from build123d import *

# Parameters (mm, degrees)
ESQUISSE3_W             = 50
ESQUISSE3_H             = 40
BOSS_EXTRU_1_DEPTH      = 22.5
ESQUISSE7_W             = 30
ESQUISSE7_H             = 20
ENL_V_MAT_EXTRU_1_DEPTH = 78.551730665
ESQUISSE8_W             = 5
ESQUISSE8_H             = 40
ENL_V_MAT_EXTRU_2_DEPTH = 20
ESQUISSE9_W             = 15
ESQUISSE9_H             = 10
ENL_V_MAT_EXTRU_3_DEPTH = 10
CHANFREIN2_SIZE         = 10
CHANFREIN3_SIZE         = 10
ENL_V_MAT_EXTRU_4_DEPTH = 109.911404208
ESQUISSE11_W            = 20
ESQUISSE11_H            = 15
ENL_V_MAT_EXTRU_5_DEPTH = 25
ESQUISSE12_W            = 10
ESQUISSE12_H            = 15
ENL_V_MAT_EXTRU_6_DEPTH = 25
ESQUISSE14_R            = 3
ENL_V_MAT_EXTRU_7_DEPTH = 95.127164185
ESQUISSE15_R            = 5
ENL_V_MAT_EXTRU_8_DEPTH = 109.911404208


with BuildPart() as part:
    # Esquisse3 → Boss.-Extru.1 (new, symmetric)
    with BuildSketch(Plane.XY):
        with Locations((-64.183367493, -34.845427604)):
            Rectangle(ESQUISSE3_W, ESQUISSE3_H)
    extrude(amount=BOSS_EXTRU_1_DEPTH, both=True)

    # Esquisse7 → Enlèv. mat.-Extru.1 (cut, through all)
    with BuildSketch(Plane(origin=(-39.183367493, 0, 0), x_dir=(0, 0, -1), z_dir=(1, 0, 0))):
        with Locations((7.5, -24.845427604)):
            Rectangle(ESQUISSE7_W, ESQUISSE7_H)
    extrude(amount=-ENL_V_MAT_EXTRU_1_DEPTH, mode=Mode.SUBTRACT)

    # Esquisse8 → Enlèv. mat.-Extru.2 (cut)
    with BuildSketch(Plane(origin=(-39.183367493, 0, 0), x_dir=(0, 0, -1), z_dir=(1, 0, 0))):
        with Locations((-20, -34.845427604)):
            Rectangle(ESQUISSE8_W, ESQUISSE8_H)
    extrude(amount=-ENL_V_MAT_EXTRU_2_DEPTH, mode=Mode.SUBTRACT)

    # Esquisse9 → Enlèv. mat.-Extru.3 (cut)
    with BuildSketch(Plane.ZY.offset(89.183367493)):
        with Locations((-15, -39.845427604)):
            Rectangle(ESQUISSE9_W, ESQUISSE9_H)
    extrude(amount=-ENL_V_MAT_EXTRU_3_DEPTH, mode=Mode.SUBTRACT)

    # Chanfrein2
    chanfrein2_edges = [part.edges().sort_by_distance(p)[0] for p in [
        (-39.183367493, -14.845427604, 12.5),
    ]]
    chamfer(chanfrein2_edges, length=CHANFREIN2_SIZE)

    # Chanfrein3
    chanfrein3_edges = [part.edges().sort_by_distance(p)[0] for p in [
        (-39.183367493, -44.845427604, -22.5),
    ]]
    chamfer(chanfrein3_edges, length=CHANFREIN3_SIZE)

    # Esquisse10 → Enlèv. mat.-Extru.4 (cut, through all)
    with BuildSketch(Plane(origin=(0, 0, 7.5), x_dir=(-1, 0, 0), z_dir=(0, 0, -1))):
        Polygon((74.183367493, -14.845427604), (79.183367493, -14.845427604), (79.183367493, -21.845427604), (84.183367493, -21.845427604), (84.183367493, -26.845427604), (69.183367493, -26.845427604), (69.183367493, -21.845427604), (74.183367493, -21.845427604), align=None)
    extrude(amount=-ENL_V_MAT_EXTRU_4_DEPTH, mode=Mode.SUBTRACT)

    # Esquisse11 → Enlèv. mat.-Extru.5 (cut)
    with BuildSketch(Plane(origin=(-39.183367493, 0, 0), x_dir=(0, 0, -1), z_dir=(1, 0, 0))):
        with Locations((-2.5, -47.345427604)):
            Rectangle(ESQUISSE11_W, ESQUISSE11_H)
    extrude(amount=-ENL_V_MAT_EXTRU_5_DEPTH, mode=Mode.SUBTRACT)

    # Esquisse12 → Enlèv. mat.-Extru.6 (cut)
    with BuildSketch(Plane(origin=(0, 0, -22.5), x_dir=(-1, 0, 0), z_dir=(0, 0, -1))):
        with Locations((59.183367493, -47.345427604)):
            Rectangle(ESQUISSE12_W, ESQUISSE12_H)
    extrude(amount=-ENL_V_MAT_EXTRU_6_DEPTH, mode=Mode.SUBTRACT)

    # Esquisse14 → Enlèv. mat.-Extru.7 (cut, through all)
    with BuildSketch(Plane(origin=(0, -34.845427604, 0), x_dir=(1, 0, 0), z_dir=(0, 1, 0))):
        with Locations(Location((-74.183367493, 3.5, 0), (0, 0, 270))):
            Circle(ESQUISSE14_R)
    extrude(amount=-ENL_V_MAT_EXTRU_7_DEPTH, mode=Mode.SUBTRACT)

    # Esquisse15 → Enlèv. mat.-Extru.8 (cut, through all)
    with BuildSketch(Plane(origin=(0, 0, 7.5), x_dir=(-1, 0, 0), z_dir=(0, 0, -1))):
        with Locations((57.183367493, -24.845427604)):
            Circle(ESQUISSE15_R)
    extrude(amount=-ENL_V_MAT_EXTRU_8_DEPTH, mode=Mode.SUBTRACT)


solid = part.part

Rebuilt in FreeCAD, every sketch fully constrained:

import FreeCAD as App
import Part
import Sketcher

V = App.Vector
Q = App.Units.Quantity


def edges_at(feature, points):
    """Names of the edges that pass closest to the given points."""
    edges = feature.Shape.Edges
    near = lambda p: min(range(len(edges)), key=lambda i: edges[i].distToShape(Part.Vertex(*p))[0])
    return sorted({f"Edge{near(p) + 1}" for p in points})

doc = App.newDocument("Part")
body = doc.addObject("PartDesign::Body", "Body")

# Sketch on XY plane
sketch1 = body.newObject("Sketcher::SketchObject", "Sketch")
sketch1.AttachmentSupport = (doc.getObject("XY_Plane"), [""])
sketch1.MapMode = "FlatFace"
sketch1.addGeometry(Part.LineSegment(V(-89.183367, -14.845428, 0), V(-89.183367, -54.845428, 0)), False)
sketch1.addGeometry(Part.LineSegment(V(-89.183367, -54.845428, 0), V(-39.183367, -54.845428, 0)), False)
sketch1.addGeometry(Part.LineSegment(V(-39.183367, -54.845428, 0), V(-39.183367, -14.845428, 0)), False)
sketch1.addGeometry(Part.LineSegment(V(-39.183367, -14.845428, 0), V(-89.183367, -14.845428, 0)), False)
sketch1.addConstraint(Sketcher.Constraint("Coincident", 0, 2, 1, 1))
sketch1.addConstraint(Sketcher.Constraint("Coincident", 1, 2, 2, 1))
sketch1.addConstraint(Sketcher.Constraint("Coincident", 2, 2, 3, 1))
sketch1.addConstraint(Sketcher.Constraint("Coincident", 3, 2, 0, 1))
sketch1.addConstraint(Sketcher.Constraint("Vertical", 0))
sketch1.addConstraint(Sketcher.Constraint("Horizontal", 1))
sketch1.addConstraint(Sketcher.Constraint("Vertical", 2))
sketch1.addConstraint(Sketcher.Constraint("Horizontal", 3))
sketch1.addConstraint(Sketcher.Constraint("DistanceX", 1, 1, 1, 2, Q("50 mm")))
sketch1.addConstraint(Sketcher.Constraint("DistanceY", 0, 2, 0, 1, Q("40 mm")))
sketch1.addConstraint(Sketcher.Constraint("DistanceX", 0, 2, -1, 1, Q("89.183367 mm")))
sketch1.addConstraint(Sketcher.Constraint("DistanceY", 0, 2, -1, 1, Q("54.845428 mm")))
pad1 = body.newObject("PartDesign::Pad", "Pad")
pad1.Profile = sketch1
pad1.Length = 45
pad1.Midplane = True

# Sketch on YZ plane
sketch2 = body.newObject("Sketcher::SketchObject", "Sketch001")
sketch2.AttachmentSupport = (doc.getObject("YZ_Plane"), [""])
sketch2.MapMode = "FlatFace"
sketch2.AttachmentOffset = App.Placement(V(0, 0, -39.183367), App.Rotation())
sketch2.addGeometry(Part.LineSegment(V(-14.845428, 7.5, 0), V(-34.845428, 7.5, 0)), False)
sketch2.addGeometry(Part.LineSegment(V(-34.845428, 7.5, 0), V(-34.845428, -22.5, 0)), False)
sketch2.addGeometry(Part.LineSegment(V(-34.845428, -22.5, 0), V(-14.845428, -22.5, 0)), False)
sketch2.addGeometry(Part.LineSegment(V(-14.845428, -22.5, 0), V(-14.845428, 7.5, 0)), False)
sketch2.addConstraint(Sketcher.Constraint("Coincident", 0, 2, 1, 1))
sketch2.addConstraint(Sketcher.Constraint("Coincident", 1, 2, 2, 1))
sketch2.addConstraint(Sketcher.Constraint("Coincident", 2, 2, 3, 1))
sketch2.addConstraint(Sketcher.Constraint("Coincident", 3, 2, 0, 1))
sketch2.addConstraint(Sketcher.Constraint("Horizontal", 0))
sketch2.addConstraint(Sketcher.Constraint("Vertical", 1))
sketch2.addConstraint(Sketcher.Constraint("Horizontal", 2))
sketch2.addConstraint(Sketcher.Constraint("Vertical", 3))
sketch2.addConstraint(Sketcher.Constraint("DistanceX", 0, 2, 0, 1, Q("20 mm")))
sketch2.addConstraint(Sketcher.Constraint("DistanceY", 1, 2, 1, 1, Q("30 mm")))
sketch2.addConstraint(Sketcher.Constraint("DistanceY", -1, 1, 0, 2, Q("7.5 mm")))
sketch2.addConstraint(Sketcher.Constraint("DistanceX", 0, 2, -1, 1, Q("34.845428 mm")))
pocket1 = body.newObject("PartDesign::Pocket", "Pocket")
pocket1.Profile = sketch2
pocket1.Type = "ThroughAll"

# Sketch on YZ plane
sketch3 = body.newObject("Sketcher::SketchObject", "Sketch002")
sketch3.AttachmentSupport = (doc.getObject("YZ_Plane"), [""])
sketch3.MapMode = "FlatFace"
sketch3.AttachmentOffset = App.Placement(V(0, 0, -39.183367), App.Rotation())
sketch3.addGeometry(Part.LineSegment(V(-14.845428, 22.5, 0), V(-54.845428, 22.5, 0)), False)
sketch3.addGeometry(Part.LineSegment(V(-54.845428, 22.5, 0), V(-54.845428, 17.5, 0)), False)
sketch3.addGeometry(Part.LineSegment(V(-54.845428, 17.5, 0), V(-14.845428, 17.5, 0)), False)
sketch3.addGeometry(Part.LineSegment(V(-14.845428, 17.5, 0), V(-14.845428, 22.5, 0)), False)
sketch3.addConstraint(Sketcher.Constraint("Coincident", 0, 2, 1, 1))
sketch3.addConstraint(Sketcher.Constraint("Coincident", 1, 2, 2, 1))
sketch3.addConstraint(Sketcher.Constraint("Coincident", 2, 2, 3, 1))
sketch3.addConstraint(Sketcher.Constraint("Coincident", 3, 2, 0, 1))
sketch3.addConstraint(Sketcher.Constraint("Horizontal", 0))
sketch3.addConstraint(Sketcher.Constraint("Vertical", 1))
sketch3.addConstraint(Sketcher.Constraint("Horizontal", 2))
sketch3.addConstraint(Sketcher.Constraint("Vertical", 3))
sketch3.addConstraint(Sketcher.Constraint("DistanceX", 0, 2, 0, 1, Q("40 mm")))
sketch3.addConstraint(Sketcher.Constraint("DistanceY", 1, 2, 1, 1, Q("5 mm")))
sketch3.addConstraint(Sketcher.Constraint("DistanceY", -1, 1, 0, 2, Q("22.5 mm")))
sketch3.addConstraint(Sketcher.Constraint("DistanceX", 0, 2, -1, 1, Q("54.845428 mm")))
pocket2 = body.newObject("PartDesign::Pocket", "Pocket001")
pocket2.Profile = sketch3
pocket2.Length = 20

# Sketch on YZ plane
sketch4 = body.newObject("Sketcher::SketchObject", "Sketch003")
sketch4.AttachmentSupport = (doc.getObject("YZ_Plane"), [""])
sketch4.MapMode = "FlatFace"
sketch4.AttachmentOffset = App.Placement(V(0, 0, -89.183367), App.Rotation())
sketch4.addGeometry(Part.LineSegment(V(-34.845428, -22.5, 0), V(-44.845428, -22.5, 0)), False)
sketch4.addGeometry(Part.LineSegment(V(-44.845428, -22.5, 0), V(-44.845428, -7.5, 0)), False)
sketch4.addGeometry(Part.LineSegment(V(-44.845428, -7.5, 0), V(-34.845428, -7.5, 0)), False)
sketch4.addGeometry(Part.LineSegment(V(-34.845428, -7.5, 0), V(-34.845428, -22.5, 0)), False)
sketch4.addConstraint(Sketcher.Constraint("Coincident", 0, 2, 1, 1))
sketch4.addConstraint(Sketcher.Constraint("Coincident", 1, 2, 2, 1))
sketch4.addConstraint(Sketcher.Constraint("Coincident", 2, 2, 3, 1))
sketch4.addConstraint(Sketcher.Constraint("Coincident", 3, 2, 0, 1))
sketch4.addConstraint(Sketcher.Constraint("Horizontal", 0))
sketch4.addConstraint(Sketcher.Constraint("Vertical", 1))
sketch4.addConstraint(Sketcher.Constraint("Horizontal", 2))
sketch4.addConstraint(Sketcher.Constraint("Vertical", 3))
sketch4.addConstraint(Sketcher.Constraint("DistanceX", 0, 2, 0, 1, Q("10 mm")))
sketch4.addConstraint(Sketcher.Constraint("DistanceY", 1, 1, 1, 2, Q("15 mm")))
sketch4.addConstraint(Sketcher.Constraint("DistanceY", 0, 2, -1, 1, Q("22.5 mm")))
sketch4.addConstraint(Sketcher.Constraint("DistanceX", 0, 2, -1, 1, Q("44.845428 mm")))
pocket3 = body.newObject("PartDesign::Pocket", "Pocket002")
pocket3.Profile = sketch4
pocket3.Length = 10
pocket3.Reversed = True
doc.recompute()

chamfer = body.newObject("PartDesign::Chamfer", "Chamfer")
chamfer.Base = (pocket3, edges_at(pocket3, [(-39.183, -14.845, 12.5)]))
chamfer.Size = 10
doc.recompute()

chamfer2 = body.newObject("PartDesign::Chamfer", "Chamfer001")
chamfer2.Base = (chamfer, edges_at(chamfer, [(-39.183, -44.845, -22.5)]))
chamfer2.Size = 10

# Sketch on XY plane
sketch5 = body.newObject("Sketcher::SketchObject", "Sketch004")
sketch5.AttachmentSupport = (doc.getObject("XY_Plane"), [""])
sketch5.MapMode = "FlatFace"
sketch5.AttachmentOffset = App.Placement(V(0, 0, 7.5), App.Rotation())
sketch5.addGeometry(Part.LineSegment(V(-79.183367, -14.845428, 0), V(-74.183367, -14.845428, 0)), False)
sketch5.addGeometry(Part.LineSegment(V(-74.183367, -14.845428, 0), V(-74.183367, -21.845428, 0)), False)
sketch5.addGeometry(Part.LineSegment(V(-74.183367, -21.845428, 0), V(-69.183367, -21.845428, 0)), False)
sketch5.addGeometry(Part.LineSegment(V(-69.183367, -21.845428, 0), V(-69.183367, -26.845428, 0)), False)
sketch5.addGeometry(Part.LineSegment(V(-69.183367, -26.845428, 0), V(-84.183367, -26.845428, 0)), False)
sketch5.addGeometry(Part.LineSegment(V(-84.183367, -26.845428, 0), V(-84.183367, -21.845428, 0)), False)
sketch5.addGeometry(Part.LineSegment(V(-84.183367, -21.845428, 0), V(-79.183367, -21.845428, 0)), False)
sketch5.addGeometry(Part.LineSegment(V(-79.183367, -21.845428, 0), V(-79.183367, -14.845428, 0)), False)
sketch5.addConstraint(Sketcher.Constraint("Coincident", 0, 2, 1, 1))
sketch5.addConstraint(Sketcher.Constraint("Coincident", 1, 2, 2, 1))
sketch5.addConstraint(Sketcher.Constraint("Coincident", 2, 2, 3, 1))
sketch5.addConstraint(Sketcher.Constraint("Coincident", 3, 2, 4, 1))
sketch5.addConstraint(Sketcher.Constraint("Coincident", 4, 2, 5, 1))
sketch5.addConstraint(Sketcher.Constraint("Coincident", 5, 2, 6, 1))
sketch5.addConstraint(Sketcher.Constraint("Coincident", 6, 2, 7, 1))
sketch5.addConstraint(Sketcher.Constraint("Coincident", 7, 2, 0, 1))
sketch5.addConstraint(Sketcher.Constraint("Horizontal", 0))
sketch5.addConstraint(Sketcher.Constraint("Vertical", 1))
sketch5.addConstraint(Sketcher.Constraint("Horizontal", 2))
sketch5.addConstraint(Sketcher.Constraint("Vertical", 3))
sketch5.addConstraint(Sketcher.Constraint("Horizontal", 4))
sketch5.addConstraint(Sketcher.Constraint("Vertical", 5))
sketch5.addConstraint(Sketcher.Constraint("Horizontal", 6))
sketch5.addConstraint(Sketcher.Constraint("Vertical", 7))
sketch5.addConstraint(Sketcher.Constraint("Horizontal", 2, 2, 5, 2))
sketch5.addConstraint(Sketcher.Constraint("Equal", 0, 2))
sketch5.addConstraint(Sketcher.Constraint("Equal", 2, 6))
sketch5.addConstraint(Sketcher.Constraint("Equal", 6, 3))
sketch5.addConstraint(Sketcher.Constraint("DistanceX", 0, 1, 0, 2, Q("5 mm")))
sketch5.addConstraint(Sketcher.Constraint("DistanceY", 1, 2, 1, 1, Q("7 mm")))
sketch5.addConstraint(Sketcher.Constraint("DistanceX", 0, 2, -1, 1, Q("74.183367 mm")))
sketch5.addConstraint(Sketcher.Constraint("DistanceY", 0, 2, -1, 1, Q("14.845428 mm")))
pocket4 = body.newObject("PartDesign::Pocket", "Pocket003")
pocket4.Profile = sketch5
pocket4.Type = "ThroughAll"
pocket4.Reversed = True

# Sketch on YZ plane
sketch6 = body.newObject("Sketcher::SketchObject", "Sketch005")
sketch6.AttachmentSupport = (doc.getObject("YZ_Plane"), [""])
sketch6.MapMode = "FlatFace"
sketch6.AttachmentOffset = App.Placement(V(0, 0, -39.183367), App.Rotation())
sketch6.addGeometry(Part.LineSegment(V(-39.845428, 12.5, 0), V(-54.845428, 12.5, 0)), False)
sketch6.addGeometry(Part.LineSegment(V(-54.845428, 12.5, 0), V(-54.845428, -7.5, 0)), False)
sketch6.addGeometry(Part.LineSegment(V(-54.845428, -7.5, 0), V(-39.845428, -7.5, 0)), False)
sketch6.addGeometry(Part.LineSegment(V(-39.845428, -7.5, 0), V(-39.845428, 12.5, 0)), False)
sketch6.addConstraint(Sketcher.Constraint("Coincident", 0, 2, 1, 1))
sketch6.addConstraint(Sketcher.Constraint("Coincident", 1, 2, 2, 1))
sketch6.addConstraint(Sketcher.Constraint("Coincident", 2, 2, 3, 1))
sketch6.addConstraint(Sketcher.Constraint("Coincident", 3, 2, 0, 1))
sketch6.addConstraint(Sketcher.Constraint("Horizontal", 0))
sketch6.addConstraint(Sketcher.Constraint("Vertical", 1))
sketch6.addConstraint(Sketcher.Constraint("Horizontal", 2))
sketch6.addConstraint(Sketcher.Constraint("Vertical", 3))
sketch6.addConstraint(Sketcher.Constraint("DistanceX", 0, 2, 0, 1, Q("15 mm")))
sketch6.addConstraint(Sketcher.Constraint("DistanceY", 1, 2, 1, 1, Q("20 mm")))
sketch6.addConstraint(Sketcher.Constraint("DistanceY", -1, 1, 0, 2, Q("12.5 mm")))
sketch6.addConstraint(Sketcher.Constraint("DistanceX", 0, 2, -1, 1, Q("54.845428 mm")))
pocket5 = body.newObject("PartDesign::Pocket", "Pocket004")
pocket5.Profile = sketch6
pocket5.Length = 25

# Sketch on XY plane
sketch7 = body.newObject("Sketcher::SketchObject", "Sketch006")
sketch7.AttachmentSupport = (doc.getObject("XY_Plane"), [""])
sketch7.MapMode = "FlatFace"
sketch7.AttachmentOffset = App.Placement(V(0, 0, -22.5), App.Rotation())
sketch7.addGeometry(Part.LineSegment(V(-54.183367, -39.845428, 0), V(-54.183367, -54.845428, 0)), False)
sketch7.addGeometry(Part.LineSegment(V(-54.183367, -54.845428, 0), V(-64.183367, -54.845428, 0)), False)
sketch7.addGeometry(Part.LineSegment(V(-64.183367, -54.845428, 0), V(-64.183367, -39.845428, 0)), False)
sketch7.addGeometry(Part.LineSegment(V(-64.183367, -39.845428, 0), V(-54.183367, -39.845428, 0)), False)
sketch7.addConstraint(Sketcher.Constraint("Coincident", 0, 2, 1, 1))
sketch7.addConstraint(Sketcher.Constraint("Coincident", 1, 2, 2, 1))
sketch7.addConstraint(Sketcher.Constraint("Coincident", 2, 2, 3, 1))
sketch7.addConstraint(Sketcher.Constraint("Coincident", 3, 2, 0, 1))
sketch7.addConstraint(Sketcher.Constraint("Vertical", 0))
sketch7.addConstraint(Sketcher.Constraint("Horizontal", 1))
sketch7.addConstraint(Sketcher.Constraint("Vertical", 2))
sketch7.addConstraint(Sketcher.Constraint("Horizontal", 3))
sketch7.addConstraint(Sketcher.Constraint("DistanceX", 1, 2, 1, 1, Q("10 mm")))
sketch7.addConstraint(Sketcher.Constraint("DistanceY", 0, 2, 0, 1, Q("15 mm")))
sketch7.addConstraint(Sketcher.Constraint("DistanceX", 0, 2, -1, 1, Q("54.183367 mm")))
sketch7.addConstraint(Sketcher.Constraint("DistanceY", 0, 2, -1, 1, Q("54.845428 mm")))
pocket6 = body.newObject("PartDesign::Pocket", "Pocket005")
pocket6.Profile = sketch7
pocket6.Length = 25
pocket6.Reversed = True

# Sketch on XZ plane
sketch8 = body.newObject("Sketcher::SketchObject", "Sketch007")
sketch8.AttachmentSupport = (doc.getObject("XZ_Plane"), [""])
sketch8.MapMode = "FlatFace"
sketch8.AttachmentOffset = App.Placement(V(0, 0, 34.845428), App.Rotation())
sketch8.addGeometry(Part.Circle(V(-74.183367, -3.5, 0), V(0, 0, 1), 3), False)
sketch8.addConstraint(Sketcher.Constraint("Diameter", 0, Q("6 mm")))
sketch8.addConstraint(Sketcher.Constraint("DistanceY", 0, 3, -1, 1, Q("3.5 mm")))
sketch8.addConstraint(Sketcher.Constraint("DistanceX", 0, 3, -1, 1, Q("74.183367 mm")))
pocket7 = body.newObject("PartDesign::Pocket", "Pocket006")
pocket7.Profile = sketch8
pocket7.Type = "ThroughAll"
pocket7.Reversed = True

# Sketch on XY plane
sketch9 = body.newObject("Sketcher::SketchObject", "Sketch008")
sketch9.AttachmentSupport = (doc.getObject("XY_Plane"), [""])
sketch9.MapMode = "FlatFace"
sketch9.AttachmentOffset = App.Placement(V(0, 0, 7.5), App.Rotation())
sketch9.addGeometry(Part.Circle(V(-57.183367, -24.845428, 0), V(0, 0, 1), 5), False)
sketch9.addConstraint(Sketcher.Constraint("Diameter", 0, Q("10 mm")))
sketch9.addConstraint(Sketcher.Constraint("DistanceX", 0, 3, -1, 1, Q("57.183367 mm")))
sketch9.addConstraint(Sketcher.Constraint("DistanceY", 0, 3, -1, 1, Q("24.845428 mm")))
pocket8 = body.newObject("PartDesign::Pocket", "Pocket007")
pocket8.Profile = sketch9
pocket8.Type = "ThroughAll"
pocket8.Reversed = True

doc.recompute()
